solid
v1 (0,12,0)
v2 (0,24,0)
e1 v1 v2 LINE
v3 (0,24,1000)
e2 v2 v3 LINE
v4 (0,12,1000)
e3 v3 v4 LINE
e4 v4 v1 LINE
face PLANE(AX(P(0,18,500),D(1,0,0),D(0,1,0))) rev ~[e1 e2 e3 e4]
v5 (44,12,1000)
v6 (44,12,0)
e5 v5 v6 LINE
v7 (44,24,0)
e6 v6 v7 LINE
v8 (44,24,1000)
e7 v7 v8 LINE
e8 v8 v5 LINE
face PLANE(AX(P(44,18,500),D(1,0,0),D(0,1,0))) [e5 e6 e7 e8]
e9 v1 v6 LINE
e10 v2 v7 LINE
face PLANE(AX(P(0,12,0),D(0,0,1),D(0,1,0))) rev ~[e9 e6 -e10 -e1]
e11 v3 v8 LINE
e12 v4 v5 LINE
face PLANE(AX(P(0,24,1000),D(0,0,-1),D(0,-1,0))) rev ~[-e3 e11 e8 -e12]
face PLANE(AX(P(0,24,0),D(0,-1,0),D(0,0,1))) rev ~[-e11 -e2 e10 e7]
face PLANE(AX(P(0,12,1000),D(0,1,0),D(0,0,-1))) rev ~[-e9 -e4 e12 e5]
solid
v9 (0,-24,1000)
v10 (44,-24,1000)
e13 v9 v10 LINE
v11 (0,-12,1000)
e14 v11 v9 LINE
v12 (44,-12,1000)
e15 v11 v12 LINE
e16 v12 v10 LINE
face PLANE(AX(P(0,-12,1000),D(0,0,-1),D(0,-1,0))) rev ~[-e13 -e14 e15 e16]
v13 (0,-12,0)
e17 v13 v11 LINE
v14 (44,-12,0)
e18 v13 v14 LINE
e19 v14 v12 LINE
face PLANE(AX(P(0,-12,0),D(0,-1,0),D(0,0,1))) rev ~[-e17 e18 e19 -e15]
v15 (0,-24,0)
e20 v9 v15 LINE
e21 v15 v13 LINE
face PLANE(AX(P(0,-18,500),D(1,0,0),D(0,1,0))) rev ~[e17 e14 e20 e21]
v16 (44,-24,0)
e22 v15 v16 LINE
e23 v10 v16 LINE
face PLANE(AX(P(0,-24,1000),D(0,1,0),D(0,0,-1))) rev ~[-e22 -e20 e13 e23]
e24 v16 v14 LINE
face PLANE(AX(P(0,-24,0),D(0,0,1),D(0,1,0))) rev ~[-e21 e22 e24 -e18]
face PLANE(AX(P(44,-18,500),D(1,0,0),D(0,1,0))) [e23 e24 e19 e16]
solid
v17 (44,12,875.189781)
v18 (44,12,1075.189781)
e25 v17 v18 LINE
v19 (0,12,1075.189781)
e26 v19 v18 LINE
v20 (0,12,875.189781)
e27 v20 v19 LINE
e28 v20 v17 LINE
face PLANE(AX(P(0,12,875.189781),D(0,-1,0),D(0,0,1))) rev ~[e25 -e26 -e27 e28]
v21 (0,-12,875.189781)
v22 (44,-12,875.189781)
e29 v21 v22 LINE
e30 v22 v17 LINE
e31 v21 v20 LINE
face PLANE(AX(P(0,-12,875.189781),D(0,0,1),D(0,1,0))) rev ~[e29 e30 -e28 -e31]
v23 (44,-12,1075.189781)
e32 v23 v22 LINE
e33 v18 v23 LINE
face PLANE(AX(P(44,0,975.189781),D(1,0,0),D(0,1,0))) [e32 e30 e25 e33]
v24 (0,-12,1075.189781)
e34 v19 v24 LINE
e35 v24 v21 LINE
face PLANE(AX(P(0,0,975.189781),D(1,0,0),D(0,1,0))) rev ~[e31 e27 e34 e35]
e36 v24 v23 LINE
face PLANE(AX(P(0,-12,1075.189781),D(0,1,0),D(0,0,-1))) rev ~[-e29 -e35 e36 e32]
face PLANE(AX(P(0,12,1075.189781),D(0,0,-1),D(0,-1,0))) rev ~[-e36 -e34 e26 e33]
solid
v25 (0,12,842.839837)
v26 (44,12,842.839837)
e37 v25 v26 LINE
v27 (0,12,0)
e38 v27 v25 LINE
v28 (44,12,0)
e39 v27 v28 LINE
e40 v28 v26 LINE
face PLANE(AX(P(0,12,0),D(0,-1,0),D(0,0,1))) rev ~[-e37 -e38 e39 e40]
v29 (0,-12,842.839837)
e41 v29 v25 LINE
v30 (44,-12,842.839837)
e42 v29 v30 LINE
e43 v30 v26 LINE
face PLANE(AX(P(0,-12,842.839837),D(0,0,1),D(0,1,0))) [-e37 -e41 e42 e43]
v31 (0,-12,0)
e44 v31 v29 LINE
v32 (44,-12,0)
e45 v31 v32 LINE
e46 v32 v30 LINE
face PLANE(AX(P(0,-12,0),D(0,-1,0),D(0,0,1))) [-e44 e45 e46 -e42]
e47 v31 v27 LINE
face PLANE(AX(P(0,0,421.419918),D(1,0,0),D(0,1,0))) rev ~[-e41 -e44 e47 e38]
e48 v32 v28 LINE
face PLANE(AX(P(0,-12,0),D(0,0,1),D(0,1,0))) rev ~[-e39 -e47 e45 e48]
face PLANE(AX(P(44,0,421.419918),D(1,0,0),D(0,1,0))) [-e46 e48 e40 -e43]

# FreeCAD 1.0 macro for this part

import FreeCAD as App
import Part
import Sketcher

V = App.Vector

doc = App.newDocument("Part")
params = doc.addObject("Spreadsheet::Sheet", "Params")
for row, (alias, value) in enumerate([
    ("sketch1_width", "12 mm"),
    ("sketch1_height", "1000 mm"),
    ("pad1_length", "44 mm"),
    ("sketch2_width", "24 mm"),
    ("sketch2_height", "200 mm"),
    ("pad2_length", "44 mm"),
], start=1):
    params.set(f"A{row}", alias)
    params.set(f"B{row}", "=" + value)
    params.setAlias(f"B{row}", alias)

body = doc.addObject("PartDesign::Body", "Body")
body.AllowCompound = True

# Sketch on YZ plane
sketch1 = body.newObject("Sketcher::SketchObject", "Sketch")
sketch1.AttachmentSupport = (doc.getObject("YZ_Plane"), [""])
sketch1.MapMode = "FlatFace"
sketch1.addGeometry(Part.LineSegment(V(-24, 0, 0), V(-12, 0, 0)), False)
sketch1.addGeometry(Part.LineSegment(V(-12, 0, 0), V(-12, 1000, 0)), False)
sketch1.addGeometry(Part.LineSegment(V(-12, 1000, 0), V(-24, 1000, 0)), False)
sketch1.addGeometry(Part.LineSegment(V(-24, 1000, 0), V(-24, 0, 0)), False)
sketch1.addGeometry(Part.LineSegment(V(12, 0, 0), V(24, 0, 0)), False)
sketch1.addGeometry(Part.LineSegment(V(24, 0, 0), V(24, 1000, 0)), False)
sketch1.addGeometry(Part.LineSegment(V(24, 1000, 0), V(12, 1000, 0)), False)
sketch1.addGeometry(Part.LineSegment(V(12, 1000, 0), V(12, 0, 0)), False)
sketch1.addConstraint(Sketcher.Constraint("Coincident", 0, 2, 1, 1))
sketch1.addConstraint(Sketcher.Constraint("Coincident", 1, 2, 2, 1))
sketch1.addConstraint(Sketcher.Constraint("Coincident", 2, 2, 3, 1))
sketch1.addConstraint(Sketcher.Constraint("Coincident", 3, 2, 0, 1))
sketch1.addConstraint(Sketcher.Constraint("Coincident", 4, 2, 5, 1))
sketch1.addConstraint(Sketcher.Constraint("Coincident", 5, 2, 6, 1))
sketch1.addConstraint(Sketcher.Constraint("Coincident", 6, 2, 7, 1))
sketch1.addConstraint(Sketcher.Constraint("Coincident", 7, 2, 4, 1))
sketch1.addConstraint(Sketcher.Constraint("Horizontal", 0))
sketch1.addConstraint(Sketcher.Constraint("Vertical", 1))
sketch1.addConstraint(Sketcher.Constraint("Horizontal", 2))
sketch1.addConstraint(Sketcher.Constraint("Vertical", 3))
sketch1.addConstraint(Sketcher.Constraint("Horizontal", 4))
sketch1.addConstraint(Sketcher.Constraint("Vertical", 5))
sketch1.addConstraint(Sketcher.Constraint("Horizontal", 6))
sketch1.addConstraint(Sketcher.Constraint("Vertical", 7))
sketch1.addConstraint(Sketcher.Constraint("Symmetric", 3, 2, 4, 2, -1, 1))
sketch1.addConstraint(Sketcher.Constraint("Symmetric", 1, 2, 6, 2, -2))
sketch1.addConstraint(Sketcher.Constraint("PointOnObject", 0, 2, -1))
sketch1.addConstraint(Sketcher.Constraint("DistanceX", 0, 1, 0, 2, 12.0))
sketch1.addConstraint(Sketcher.Constraint("DistanceY", 1, 1, 1, 2, 1000.0))
sketch1.addConstraint(Sketcher.Constraint("DistanceX", 0, 2, -1, 1, 12.0))
sketch1.setExpression("Constraints[19]", "Params.sketch1_width")
sketch1.setExpression("Constraints[20]", "Params.sketch1_height")
pad1 = body.newObject("PartDesign::Pad", "Pad")
pad1.Profile = sketch1
pad1.setExpression("Length", "Params.pad1_length")
body2 = doc.addObject("PartDesign::Body", "Body001")
body2.AllowCompound = True

# Sketch on YZ plane
sketch2 = body2.newObject("Sketcher::SketchObject", "Sketch001")
sketch2.AttachmentSupport = (doc.getObject("YZ_Plane001"), [""])
sketch2.MapMode = "FlatFace"
sketch2.addGeometry(Part.LineSegment(V(-12, 842.839837, 0), V(-12, 0, 0)), False)
sketch2.addGeometry(Part.LineSegment(V(-12, 0, 0), V(12, 0, 0)), False)
sketch2.addGeometry(Part.LineSegment(V(12, 0, 0), V(12, 842.839837, 0)), False)
sketch2.addGeometry(Part.LineSegment(V(12, 842.839837, 0), V(-12, 842.839837, 0)), False)
sketch2.addGeometry(Part.LineSegment(V(-12, 875.189781, 0), V(12, 875.189781, 0)), False)
sketch2.addGeometry(Part.LineSegment(V(12, 875.189781, 0), V(12, 1075.189781, 0)), False)
sketch2.addGeometry(Part.LineSegment(V(12, 1075.189781, 0), V(-12, 1075.189781, 0)), False)
sketch2.addGeometry(Part.LineSegment(V(-12, 1075.189781, 0), V(-12, 875.189781, 0)), False)
sketch2.addConstraint(Sketcher.Constraint("Coincident", 0, 2, 1, 1))
sketch2.addConstraint(Sketcher.Constraint("Coincident", 1, 2, 2, 1))
sketch2.addConstraint(Sketcher.Constraint("Coincident", 2, 2, 3, 1))
sketch2.addConstraint(Sketcher.Constraint("Coincident", 3, 2, 0, 1))
sketch2.addConstraint(Sketcher.Constraint("Coincident", 4, 2, 5, 1))
sketch2.addConstraint(Sketcher.Constraint("Coincident", 5, 2, 6, 1))
sketch2.addConstraint(Sketcher.Constraint("Coincident", 6, 2, 7, 1))
sketch2.addConstraint(Sketcher.Constraint("Coincident", 7, 2, 4, 1))
sketch2.addConstraint(Sketcher.Constraint("Vertical", 0))
sketch2.addConstraint(Sketcher.Constraint("Horizontal", 1))
sketch2.addConstraint(Sketcher.Constraint("Vertical", 2))
sketch2.addConstraint(Sketcher.Constraint("Horizontal", 3))
sketch2.addConstraint(Sketcher.Constraint("Horizontal", 4))
sketch2.addConstraint(Sketcher.Constraint("Vertical", 5))
sketch2.addConstraint(Sketcher.Constraint("Horizontal", 6))
sketch2.addConstraint(Sketcher.Constraint("Vertical", 7))
sketch2.addConstraint(Sketcher.Constraint("Symmetric", 0, 2, 1, 2, -1, 1))
sketch2.addConstraint(Sketcher.Constraint("Vertical", 2, 2, 4, 2))
sketch2.addConstraint(Sketcher.Constraint("Vertical", 3, 2, 6, 2))
sketch2.addConstraint(Sketcher.Constraint("DistanceX", 1, 1, 1, 2, 24.0))
sketch2.addConstraint(Sketcher.Constraint("DistanceY", 5, 1, 5, 2, 200.0))
sketch2.addConstraint(Sketcher.Constraint("DistanceY", 0, 2, 0, 1, 842.839837))
sketch2.addConstraint(Sketcher.Constraint("DistanceY", -1, 1, 4, 2, 875.189781))
sketch2.setExpression("Constraints[19]", "Params.sketch2_width")
sketch2.setExpression("Constraints[20]", "Params.sketch2_height")
pad2 = body2.newObject("PartDesign::Pad", "Pad001")
pad2.Profile = sketch2
pad2.setExpression("Length", "Params.pad2_length")

doc.recompute()
